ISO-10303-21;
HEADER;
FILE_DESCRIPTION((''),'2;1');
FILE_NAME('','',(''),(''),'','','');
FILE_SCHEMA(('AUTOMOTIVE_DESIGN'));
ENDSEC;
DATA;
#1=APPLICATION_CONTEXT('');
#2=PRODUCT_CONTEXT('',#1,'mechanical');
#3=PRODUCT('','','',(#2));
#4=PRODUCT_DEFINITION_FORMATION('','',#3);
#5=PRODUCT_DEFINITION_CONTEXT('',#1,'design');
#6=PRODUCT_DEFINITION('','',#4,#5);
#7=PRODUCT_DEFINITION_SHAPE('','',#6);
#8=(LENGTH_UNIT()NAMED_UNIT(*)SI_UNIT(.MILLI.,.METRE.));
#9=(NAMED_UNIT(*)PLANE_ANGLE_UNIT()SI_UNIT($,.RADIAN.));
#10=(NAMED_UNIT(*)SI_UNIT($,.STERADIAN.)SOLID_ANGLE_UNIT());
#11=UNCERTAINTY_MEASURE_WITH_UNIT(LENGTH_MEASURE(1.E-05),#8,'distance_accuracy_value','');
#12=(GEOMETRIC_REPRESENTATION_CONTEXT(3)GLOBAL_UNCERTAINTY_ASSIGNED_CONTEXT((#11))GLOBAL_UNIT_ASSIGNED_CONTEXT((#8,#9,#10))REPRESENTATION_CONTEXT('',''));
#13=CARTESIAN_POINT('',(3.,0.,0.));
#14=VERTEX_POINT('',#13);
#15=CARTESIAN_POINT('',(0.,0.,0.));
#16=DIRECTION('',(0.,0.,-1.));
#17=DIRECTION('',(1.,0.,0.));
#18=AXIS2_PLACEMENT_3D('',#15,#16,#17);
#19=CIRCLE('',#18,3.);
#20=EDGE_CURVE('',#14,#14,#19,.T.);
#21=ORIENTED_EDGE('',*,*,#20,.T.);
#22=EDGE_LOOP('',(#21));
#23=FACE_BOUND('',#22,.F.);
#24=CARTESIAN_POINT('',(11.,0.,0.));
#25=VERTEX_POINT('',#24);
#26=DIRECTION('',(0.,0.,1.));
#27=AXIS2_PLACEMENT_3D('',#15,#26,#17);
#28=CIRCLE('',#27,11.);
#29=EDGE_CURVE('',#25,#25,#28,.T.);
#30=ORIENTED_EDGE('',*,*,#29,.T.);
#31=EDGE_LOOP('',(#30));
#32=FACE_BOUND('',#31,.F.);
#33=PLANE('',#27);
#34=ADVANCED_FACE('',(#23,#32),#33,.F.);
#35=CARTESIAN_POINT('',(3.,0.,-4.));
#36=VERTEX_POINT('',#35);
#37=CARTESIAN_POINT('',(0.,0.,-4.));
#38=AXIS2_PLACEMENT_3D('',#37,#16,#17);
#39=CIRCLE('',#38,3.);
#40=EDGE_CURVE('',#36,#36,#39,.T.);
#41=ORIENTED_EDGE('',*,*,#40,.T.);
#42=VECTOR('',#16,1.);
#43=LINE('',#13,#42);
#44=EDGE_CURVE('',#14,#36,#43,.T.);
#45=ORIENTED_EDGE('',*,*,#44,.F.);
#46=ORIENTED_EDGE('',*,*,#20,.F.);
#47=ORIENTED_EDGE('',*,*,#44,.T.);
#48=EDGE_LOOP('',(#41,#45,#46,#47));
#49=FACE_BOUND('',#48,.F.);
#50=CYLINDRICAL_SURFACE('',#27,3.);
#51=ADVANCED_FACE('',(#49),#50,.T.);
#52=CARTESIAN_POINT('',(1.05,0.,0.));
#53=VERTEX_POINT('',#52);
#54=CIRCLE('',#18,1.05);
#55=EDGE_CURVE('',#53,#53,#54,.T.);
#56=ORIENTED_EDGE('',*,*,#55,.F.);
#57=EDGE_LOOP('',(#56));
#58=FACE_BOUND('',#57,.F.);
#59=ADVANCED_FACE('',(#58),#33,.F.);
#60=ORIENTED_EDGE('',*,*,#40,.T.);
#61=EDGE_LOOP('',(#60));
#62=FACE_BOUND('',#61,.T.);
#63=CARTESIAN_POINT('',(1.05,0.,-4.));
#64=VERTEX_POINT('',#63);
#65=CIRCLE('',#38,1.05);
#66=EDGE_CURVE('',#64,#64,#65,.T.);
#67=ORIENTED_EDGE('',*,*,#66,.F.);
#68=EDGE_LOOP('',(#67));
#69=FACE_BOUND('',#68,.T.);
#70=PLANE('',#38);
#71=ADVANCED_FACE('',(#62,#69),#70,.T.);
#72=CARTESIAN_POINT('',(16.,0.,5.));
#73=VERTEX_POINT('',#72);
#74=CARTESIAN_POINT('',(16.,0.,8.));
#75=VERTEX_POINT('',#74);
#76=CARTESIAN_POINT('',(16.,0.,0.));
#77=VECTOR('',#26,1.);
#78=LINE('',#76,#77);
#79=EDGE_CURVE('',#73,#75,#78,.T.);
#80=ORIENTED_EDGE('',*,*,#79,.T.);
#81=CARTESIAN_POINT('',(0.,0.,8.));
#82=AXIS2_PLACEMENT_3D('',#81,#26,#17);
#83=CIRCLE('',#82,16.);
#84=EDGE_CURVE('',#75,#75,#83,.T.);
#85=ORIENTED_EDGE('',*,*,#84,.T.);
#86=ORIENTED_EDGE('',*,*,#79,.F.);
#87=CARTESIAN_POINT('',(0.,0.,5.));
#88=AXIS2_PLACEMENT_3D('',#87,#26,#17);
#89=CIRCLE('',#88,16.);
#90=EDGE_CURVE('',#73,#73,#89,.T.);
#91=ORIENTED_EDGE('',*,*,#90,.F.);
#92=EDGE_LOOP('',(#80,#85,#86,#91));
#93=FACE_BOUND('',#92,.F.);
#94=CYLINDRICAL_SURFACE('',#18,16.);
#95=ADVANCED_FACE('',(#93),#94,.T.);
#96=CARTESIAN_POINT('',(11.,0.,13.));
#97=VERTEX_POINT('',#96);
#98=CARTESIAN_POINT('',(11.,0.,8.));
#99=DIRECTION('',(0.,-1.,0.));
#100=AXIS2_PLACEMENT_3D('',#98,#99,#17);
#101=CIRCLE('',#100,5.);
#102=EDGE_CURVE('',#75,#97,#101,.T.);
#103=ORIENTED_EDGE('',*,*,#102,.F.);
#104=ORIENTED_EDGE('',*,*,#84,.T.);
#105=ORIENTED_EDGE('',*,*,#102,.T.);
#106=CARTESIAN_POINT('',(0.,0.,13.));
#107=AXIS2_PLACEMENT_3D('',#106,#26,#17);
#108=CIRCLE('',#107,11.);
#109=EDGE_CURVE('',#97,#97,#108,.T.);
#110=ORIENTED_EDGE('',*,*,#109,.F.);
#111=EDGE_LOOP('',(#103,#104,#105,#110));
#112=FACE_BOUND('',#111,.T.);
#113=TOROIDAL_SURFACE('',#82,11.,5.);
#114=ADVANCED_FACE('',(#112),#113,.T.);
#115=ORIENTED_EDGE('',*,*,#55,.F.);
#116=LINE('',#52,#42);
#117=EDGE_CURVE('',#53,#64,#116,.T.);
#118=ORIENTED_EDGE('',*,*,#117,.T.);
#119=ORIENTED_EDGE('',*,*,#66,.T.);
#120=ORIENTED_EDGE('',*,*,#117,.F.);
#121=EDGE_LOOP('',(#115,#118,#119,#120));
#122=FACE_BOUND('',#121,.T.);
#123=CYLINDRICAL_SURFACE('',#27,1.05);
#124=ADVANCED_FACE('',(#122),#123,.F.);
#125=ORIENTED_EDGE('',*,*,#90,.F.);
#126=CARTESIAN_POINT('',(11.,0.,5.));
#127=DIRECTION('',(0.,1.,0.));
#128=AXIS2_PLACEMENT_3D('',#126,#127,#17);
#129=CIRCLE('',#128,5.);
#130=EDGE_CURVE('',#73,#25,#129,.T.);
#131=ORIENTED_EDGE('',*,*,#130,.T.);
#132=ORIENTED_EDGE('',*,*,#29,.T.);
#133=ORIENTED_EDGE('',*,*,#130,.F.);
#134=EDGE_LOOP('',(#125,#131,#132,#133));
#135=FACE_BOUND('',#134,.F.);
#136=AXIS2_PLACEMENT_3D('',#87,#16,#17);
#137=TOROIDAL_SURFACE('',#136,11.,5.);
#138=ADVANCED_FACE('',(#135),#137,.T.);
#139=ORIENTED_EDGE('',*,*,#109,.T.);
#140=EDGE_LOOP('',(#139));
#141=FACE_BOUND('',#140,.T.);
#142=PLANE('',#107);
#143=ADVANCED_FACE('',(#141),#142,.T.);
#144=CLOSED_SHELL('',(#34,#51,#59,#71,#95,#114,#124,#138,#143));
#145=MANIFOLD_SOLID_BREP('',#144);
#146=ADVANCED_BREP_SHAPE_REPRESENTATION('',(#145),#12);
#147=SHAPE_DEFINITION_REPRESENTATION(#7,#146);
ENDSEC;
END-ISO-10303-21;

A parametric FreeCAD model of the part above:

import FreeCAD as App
import Part
import Sketcher

V = App.Vector
Q = App.Units.Quantity


def edges_at(feature, points):
    """Names of the edges that pass closest to the given points."""
    edges = feature.Shape.Edges
    near = lambda p: min(range(len(edges)), key=lambda i: edges[i].distToShape(Part.Vertex(*p))[0])
    return sorted({f"Edge{near(p) + 1}" for p in points})

doc = App.newDocument("Part")
body = doc.addObject("PartDesign::Body", "Body")

# Sketch on XY plane
sketch1 = doc.addObject("Sketcher::SketchObject", "Sketch")
body.addObject(sketch1)
sketch1.AttachmentSupport = (doc.XY_Plane, [""])
sketch1.MapMode = "FlatFace"
sketch1.addGeometry(Part.Circle(V(0, 0, 0), V(0, 0, 1), 16), False)
sketch1.addConstraint(Sketcher.Constraint("Coincident", 0, 3, -1, 1))
sketch1.addConstraint(Sketcher.Constraint("Diameter", 0, Q("32 mm")))
pad1 = doc.addObject("PartDesign::Pad", "Pad")
body.addObject(pad1)
pad1.Profile = sketch1
pad1.Length = 13
doc.recompute()

fillet = doc.addObject("PartDesign::Fillet", "Fillet")
body.addObject(fillet)
fillet.Base = (pad1, edges_at(pad1, [(-14.917, -5.786, 0), (-14.917, -5.786, 13)]))
fillet.Radius = 5

# Sketch on XY plane
sketch2 = doc.addObject("Sketcher::SketchObject", "Sketch001")
body.addObject(sketch2)
sketch2.AttachmentSupport = (doc.XY_Plane, [""])
sketch2.MapMode = "FlatFace"
sketch2.addGeometry(Part.Circle(V(0, 0, 0), V(0, 0, 1), 3), False)
sketch2.addGeometry(Part.Circle(V(0, 0, 0), V(0, 0, 1), 1.1), False)
sketch2.addConstraint(Sketcher.Constraint("Coincident", 0, 3, -1, 1))
sketch2.addConstraint(Sketcher.Constraint("Coincident", 1, 3, -1, 1))
sketch2.addConstraint(Sketcher.Constraint("Diameter", 0, Q("6 mm")))
sketch2.addConstraint(Sketcher.Constraint("Diameter", 1, Q("2.1 mm")))
pad2 = doc.addObject("PartDesign::Pad", "Pad001")
body.addObject(pad2)
pad2.Profile = sketch2
pad2.Length = 4
pad2.Reversed = True

doc.recompute()
